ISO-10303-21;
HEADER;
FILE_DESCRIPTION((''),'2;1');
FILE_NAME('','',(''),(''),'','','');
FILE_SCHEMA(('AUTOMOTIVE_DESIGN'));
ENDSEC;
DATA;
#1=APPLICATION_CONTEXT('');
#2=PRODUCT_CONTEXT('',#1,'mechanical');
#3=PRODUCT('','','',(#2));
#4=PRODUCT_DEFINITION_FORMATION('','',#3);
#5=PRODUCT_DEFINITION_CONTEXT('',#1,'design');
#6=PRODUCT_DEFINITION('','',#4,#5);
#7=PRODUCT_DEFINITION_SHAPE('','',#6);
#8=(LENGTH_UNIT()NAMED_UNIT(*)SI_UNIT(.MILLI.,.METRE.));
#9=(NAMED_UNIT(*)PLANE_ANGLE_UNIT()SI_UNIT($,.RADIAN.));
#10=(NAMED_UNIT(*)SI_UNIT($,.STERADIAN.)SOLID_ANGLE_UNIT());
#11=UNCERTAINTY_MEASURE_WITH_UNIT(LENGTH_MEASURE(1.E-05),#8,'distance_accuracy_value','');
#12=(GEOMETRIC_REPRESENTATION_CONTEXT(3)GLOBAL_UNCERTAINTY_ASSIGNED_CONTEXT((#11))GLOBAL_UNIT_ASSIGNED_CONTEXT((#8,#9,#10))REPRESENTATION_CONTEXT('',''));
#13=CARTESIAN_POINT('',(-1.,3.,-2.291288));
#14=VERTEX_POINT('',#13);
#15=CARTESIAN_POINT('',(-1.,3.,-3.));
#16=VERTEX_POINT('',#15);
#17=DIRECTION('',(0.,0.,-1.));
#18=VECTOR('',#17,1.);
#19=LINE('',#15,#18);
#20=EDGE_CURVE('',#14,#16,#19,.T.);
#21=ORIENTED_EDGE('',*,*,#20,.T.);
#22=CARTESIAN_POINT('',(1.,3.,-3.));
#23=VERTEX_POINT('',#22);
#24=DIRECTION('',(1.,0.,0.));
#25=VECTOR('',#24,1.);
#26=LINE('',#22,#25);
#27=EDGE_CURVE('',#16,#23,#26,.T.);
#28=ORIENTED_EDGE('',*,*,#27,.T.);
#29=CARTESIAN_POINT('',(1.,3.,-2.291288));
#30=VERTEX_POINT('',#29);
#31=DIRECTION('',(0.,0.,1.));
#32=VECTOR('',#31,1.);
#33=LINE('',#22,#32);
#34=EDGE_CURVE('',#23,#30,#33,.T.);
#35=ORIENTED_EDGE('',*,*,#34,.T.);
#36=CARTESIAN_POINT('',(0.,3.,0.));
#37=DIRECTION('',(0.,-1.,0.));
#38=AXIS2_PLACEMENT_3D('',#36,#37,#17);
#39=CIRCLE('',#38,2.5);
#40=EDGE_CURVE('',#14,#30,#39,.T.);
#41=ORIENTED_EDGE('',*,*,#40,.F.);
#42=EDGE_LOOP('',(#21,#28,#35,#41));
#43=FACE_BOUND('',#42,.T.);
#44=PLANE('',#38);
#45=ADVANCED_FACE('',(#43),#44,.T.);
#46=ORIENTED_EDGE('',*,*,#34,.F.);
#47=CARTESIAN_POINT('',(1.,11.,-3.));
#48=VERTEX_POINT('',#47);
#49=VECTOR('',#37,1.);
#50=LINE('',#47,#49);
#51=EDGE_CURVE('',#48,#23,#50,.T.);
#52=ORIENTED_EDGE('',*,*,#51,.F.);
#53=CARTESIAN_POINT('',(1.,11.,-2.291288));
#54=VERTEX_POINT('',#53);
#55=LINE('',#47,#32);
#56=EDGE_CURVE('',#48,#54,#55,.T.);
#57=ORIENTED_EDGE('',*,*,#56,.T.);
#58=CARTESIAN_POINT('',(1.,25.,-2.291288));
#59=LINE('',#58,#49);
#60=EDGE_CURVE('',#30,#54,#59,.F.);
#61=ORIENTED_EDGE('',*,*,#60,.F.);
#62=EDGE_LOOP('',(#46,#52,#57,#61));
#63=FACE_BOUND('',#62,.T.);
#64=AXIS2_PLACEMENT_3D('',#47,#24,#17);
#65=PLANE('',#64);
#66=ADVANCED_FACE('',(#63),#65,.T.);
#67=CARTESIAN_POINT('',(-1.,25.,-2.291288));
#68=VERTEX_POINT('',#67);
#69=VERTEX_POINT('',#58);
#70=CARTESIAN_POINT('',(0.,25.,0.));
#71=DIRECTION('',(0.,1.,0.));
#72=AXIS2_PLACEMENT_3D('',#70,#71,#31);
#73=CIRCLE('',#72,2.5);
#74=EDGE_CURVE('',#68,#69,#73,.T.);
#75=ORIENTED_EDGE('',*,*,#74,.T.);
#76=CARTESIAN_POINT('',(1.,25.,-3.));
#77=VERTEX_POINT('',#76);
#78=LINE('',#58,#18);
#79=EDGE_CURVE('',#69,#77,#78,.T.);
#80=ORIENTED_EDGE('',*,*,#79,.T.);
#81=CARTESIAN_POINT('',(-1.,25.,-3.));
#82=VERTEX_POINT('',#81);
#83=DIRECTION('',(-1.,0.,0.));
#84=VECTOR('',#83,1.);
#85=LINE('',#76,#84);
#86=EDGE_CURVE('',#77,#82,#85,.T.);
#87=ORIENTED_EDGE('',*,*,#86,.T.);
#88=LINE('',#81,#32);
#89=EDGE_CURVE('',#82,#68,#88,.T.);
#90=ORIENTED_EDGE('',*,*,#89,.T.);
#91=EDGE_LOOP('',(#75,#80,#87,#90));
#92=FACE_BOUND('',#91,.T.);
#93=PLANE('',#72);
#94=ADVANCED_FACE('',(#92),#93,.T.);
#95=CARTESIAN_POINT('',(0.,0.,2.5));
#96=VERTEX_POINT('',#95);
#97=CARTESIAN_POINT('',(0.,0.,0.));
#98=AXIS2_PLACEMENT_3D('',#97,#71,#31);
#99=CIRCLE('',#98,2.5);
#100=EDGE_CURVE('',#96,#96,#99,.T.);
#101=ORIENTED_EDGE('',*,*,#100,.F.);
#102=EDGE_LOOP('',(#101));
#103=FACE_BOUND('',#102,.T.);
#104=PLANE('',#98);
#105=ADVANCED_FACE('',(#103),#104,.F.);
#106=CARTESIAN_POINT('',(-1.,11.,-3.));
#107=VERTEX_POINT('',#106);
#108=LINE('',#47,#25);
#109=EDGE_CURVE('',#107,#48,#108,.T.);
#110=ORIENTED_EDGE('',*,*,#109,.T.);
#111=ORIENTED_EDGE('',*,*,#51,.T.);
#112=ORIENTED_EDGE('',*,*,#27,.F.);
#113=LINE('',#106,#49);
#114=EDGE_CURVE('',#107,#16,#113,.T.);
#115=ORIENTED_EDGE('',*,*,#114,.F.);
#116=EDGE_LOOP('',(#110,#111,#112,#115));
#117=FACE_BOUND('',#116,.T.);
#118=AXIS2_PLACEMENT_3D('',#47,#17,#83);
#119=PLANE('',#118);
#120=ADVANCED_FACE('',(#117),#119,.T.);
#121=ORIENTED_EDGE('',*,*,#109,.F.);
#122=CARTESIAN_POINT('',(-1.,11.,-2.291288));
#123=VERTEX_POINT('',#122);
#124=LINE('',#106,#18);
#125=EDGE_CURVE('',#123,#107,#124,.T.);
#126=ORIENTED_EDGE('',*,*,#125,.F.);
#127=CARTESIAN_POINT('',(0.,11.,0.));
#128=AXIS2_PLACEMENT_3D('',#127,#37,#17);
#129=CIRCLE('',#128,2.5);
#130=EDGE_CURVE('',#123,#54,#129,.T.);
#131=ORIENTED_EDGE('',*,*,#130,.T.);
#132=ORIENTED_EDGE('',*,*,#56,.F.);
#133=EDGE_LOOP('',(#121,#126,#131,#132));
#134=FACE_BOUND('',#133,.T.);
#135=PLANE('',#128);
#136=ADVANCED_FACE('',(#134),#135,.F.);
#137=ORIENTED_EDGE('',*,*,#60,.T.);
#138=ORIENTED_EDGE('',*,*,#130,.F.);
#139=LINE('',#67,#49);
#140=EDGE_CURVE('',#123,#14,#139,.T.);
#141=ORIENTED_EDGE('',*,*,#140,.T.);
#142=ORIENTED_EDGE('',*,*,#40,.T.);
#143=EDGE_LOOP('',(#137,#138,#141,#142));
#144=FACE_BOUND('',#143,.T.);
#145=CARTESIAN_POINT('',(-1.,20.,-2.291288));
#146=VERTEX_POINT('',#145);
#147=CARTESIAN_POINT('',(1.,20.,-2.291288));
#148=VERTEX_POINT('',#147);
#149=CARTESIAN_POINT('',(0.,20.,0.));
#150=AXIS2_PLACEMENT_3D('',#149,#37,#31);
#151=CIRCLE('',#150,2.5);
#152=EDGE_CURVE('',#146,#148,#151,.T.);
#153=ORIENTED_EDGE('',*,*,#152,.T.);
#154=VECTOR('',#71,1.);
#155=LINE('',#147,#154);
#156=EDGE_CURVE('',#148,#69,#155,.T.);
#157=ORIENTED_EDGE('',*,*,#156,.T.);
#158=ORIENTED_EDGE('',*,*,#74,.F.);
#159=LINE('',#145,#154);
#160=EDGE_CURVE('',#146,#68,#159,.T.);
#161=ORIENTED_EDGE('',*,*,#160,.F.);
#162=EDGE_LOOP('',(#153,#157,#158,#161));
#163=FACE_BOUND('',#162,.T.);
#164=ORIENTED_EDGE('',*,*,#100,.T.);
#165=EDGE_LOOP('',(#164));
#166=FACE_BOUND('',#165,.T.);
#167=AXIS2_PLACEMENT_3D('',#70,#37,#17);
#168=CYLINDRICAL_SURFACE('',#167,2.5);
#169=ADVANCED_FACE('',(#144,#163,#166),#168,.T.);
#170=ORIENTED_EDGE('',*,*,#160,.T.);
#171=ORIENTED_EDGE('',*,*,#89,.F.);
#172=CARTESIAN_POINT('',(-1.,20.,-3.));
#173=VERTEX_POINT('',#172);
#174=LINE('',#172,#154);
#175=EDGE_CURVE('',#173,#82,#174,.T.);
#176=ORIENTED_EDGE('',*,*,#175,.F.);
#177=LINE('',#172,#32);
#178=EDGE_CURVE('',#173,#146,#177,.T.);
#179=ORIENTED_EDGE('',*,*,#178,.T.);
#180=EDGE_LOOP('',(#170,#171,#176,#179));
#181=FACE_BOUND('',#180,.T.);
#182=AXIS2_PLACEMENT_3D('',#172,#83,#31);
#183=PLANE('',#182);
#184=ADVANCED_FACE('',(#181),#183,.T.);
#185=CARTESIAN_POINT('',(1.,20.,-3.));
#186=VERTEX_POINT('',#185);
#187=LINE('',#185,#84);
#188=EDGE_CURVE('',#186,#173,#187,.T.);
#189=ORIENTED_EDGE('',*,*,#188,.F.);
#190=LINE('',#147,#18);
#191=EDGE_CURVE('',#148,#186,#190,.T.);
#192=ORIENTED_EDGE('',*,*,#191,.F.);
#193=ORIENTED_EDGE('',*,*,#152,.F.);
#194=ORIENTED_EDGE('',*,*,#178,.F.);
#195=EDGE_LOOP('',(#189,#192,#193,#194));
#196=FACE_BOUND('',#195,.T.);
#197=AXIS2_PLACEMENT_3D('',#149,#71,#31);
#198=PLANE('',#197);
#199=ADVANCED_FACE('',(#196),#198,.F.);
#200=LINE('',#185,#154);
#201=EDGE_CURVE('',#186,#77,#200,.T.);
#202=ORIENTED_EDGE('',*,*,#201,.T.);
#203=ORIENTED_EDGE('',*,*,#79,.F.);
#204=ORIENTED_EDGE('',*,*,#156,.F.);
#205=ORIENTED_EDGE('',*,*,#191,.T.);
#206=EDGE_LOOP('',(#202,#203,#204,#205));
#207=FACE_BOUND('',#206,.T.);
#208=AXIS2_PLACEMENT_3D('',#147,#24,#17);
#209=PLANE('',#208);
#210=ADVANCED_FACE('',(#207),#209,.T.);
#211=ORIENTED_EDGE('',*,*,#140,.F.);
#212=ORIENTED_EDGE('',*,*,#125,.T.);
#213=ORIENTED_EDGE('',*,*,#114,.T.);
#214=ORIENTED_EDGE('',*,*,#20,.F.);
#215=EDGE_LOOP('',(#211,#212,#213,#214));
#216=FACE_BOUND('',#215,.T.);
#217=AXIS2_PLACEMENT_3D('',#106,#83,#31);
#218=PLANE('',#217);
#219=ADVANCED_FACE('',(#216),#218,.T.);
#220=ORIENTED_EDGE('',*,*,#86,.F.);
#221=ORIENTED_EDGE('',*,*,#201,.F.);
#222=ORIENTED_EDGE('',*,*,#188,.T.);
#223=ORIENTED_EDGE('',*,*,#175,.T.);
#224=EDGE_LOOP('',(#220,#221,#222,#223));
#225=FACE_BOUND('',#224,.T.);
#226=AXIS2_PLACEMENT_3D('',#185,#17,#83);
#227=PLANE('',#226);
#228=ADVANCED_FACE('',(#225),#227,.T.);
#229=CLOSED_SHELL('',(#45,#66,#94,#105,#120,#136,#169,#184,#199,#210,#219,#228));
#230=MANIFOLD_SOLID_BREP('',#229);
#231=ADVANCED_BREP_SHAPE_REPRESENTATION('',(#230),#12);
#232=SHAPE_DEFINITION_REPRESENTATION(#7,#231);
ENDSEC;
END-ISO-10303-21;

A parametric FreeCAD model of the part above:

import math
import FreeCAD as App
import Part
import Sketcher

doc = App.newDocument("Part")
body = doc.addObject("PartDesign::Body", "Body")

# Sketch on XZ plane
sketch1 = doc.addObject("Sketcher::SketchObject", "Sketch")
body.addObject(sketch1)
sketch1.AttachmentSupport = (doc.XZ_Plane, [""])
sketch1.MapMode = "FlatFace"
sketch1.addGeometry(Part.Circle(App.Vector(0, 0, 0), App.Vector(0, 0, 1), 2.5), False)
sketch1.addConstraint([
    Sketcher.Constraint("Coincident", 0, 3, -1, 1),
    Sketcher.Constraint("Diameter", 0, 5.0),
])
pad1 = doc.addObject("PartDesign::Pad", "Pad")
body.addObject(pad1)
pad1.Profile = sketch1
pad1.Length = 25
pad1.Reversed = True

# Sketch on XZ plane
sketch2 = doc.addObject("Sketcher::SketchObject", "Sketch001")
body.addObject(sketch2)
sketch2.AttachmentSupport = (doc.XZ_Plane, [""])
sketch2.MapMode = "FlatFace"
sketch2.AttachmentOffset = App.Placement(App.Vector(0, 0, -3), App.Rotation())
sketch2.addGeometry([
    Part.LineSegment(App.Vector(1, -3, 0), App.Vector(1, -2, 0)),
    Part.LineSegment(App.Vector(1, -2, 0), App.Vector(-1, -2, 0)),
    Part.LineSegment(App.Vector(-1, -2, 0), App.Vector(-1, -3, 0)),
    Part.LineSegment(App.Vector(-1, -3, 0), App.Vector(1, -3, 0)),
], False)
sketch2.addConstraint([
    Sketcher.Constraint("Coincident", 0, 2, 1, 1),
    Sketcher.Constraint("Coincident", 1, 2, 2, 1),
    Sketcher.Constraint("Coincident", 2, 2, 3, 1),
    Sketcher.Constraint("Coincident", 3, 2, 0, 1),
    Sketcher.Constraint("Vertical", 0),
    Sketcher.Constraint("Horizontal", 1),
    Sketcher.Constraint("Vertical", 2),
    Sketcher.Constraint("Horizontal", 3),
    Sketcher.Constraint("DistanceX", 1, 2, 1, 1, 2.0),
    Sketcher.Constraint("DistanceY", 0, 1, 0, 2, 1.0),
    Sketcher.Constraint("DistanceX", -1, 1, 0, 2, 1.0),
    Sketcher.Constraint("DistanceY", 0, 2, -1, 1, 2.0),
])
pad2 = doc.addObject("PartDesign::Pad", "Pad001")
body.addObject(pad2)
pad2.Profile = sketch2
pad2.Length = 8
pad2.Reversed = True

# Sketch on XZ plane
sketch3 = doc.addObject("Sketcher::SketchObject", "Sketch002")
body.addObject(sketch3)
sketch3.AttachmentSupport = (doc.XZ_Plane, [""])
sketch3.MapMode = "FlatFace"
sketch3.AttachmentOffset = App.Placement(App.Vector(0, 0, -20), App.Rotation())
sketch3.addGeometry([
    Part.LineSegment(App.Vector(-1, -3, 0), App.Vector(-1, -2.3, 0)),
    Part.ArcOfCircle(Part.Circle(App.Vector(0, 0, 0), App.Vector(0, 0, 1), 2.5), math.radians(-114), math.radians(-66)),
    Part.LineSegment(App.Vector(1, -2.3, 0), App.Vector(1, -3, 0)),
    Part.LineSegment(App.Vector(1, -3, 0), App.Vector(-1, -3, 0)),
], False)
sketch3.addConstraint([
    Sketcher.Constraint("Coincident", 0, 2, 1, 1),
    Sketcher.Constraint("Coincident", 1, 2, 2, 1),
    Sketcher.Constraint("Coincident", 2, 2, 3, 1),
    Sketcher.Constraint("Coincident", 3, 2, 0, 1),
    Sketcher.Constraint("Vertical", 0),
    Sketcher.Constraint("Vertical", 2),
    Sketcher.Constraint("Horizontal", 3),
    Sketcher.Constraint("Coincident", 1, 3, -1, 1),
    Sketcher.Constraint("Horizontal", 0, 2, 1, 2),
    Sketcher.Constraint("Radius", 1, 2.5),
    Sketcher.Constraint("DistanceX", 3, 2, 3, 1, 2.0),
    Sketcher.Constraint("DistanceY", 2, 2, -1, 1, 3.0),
])
pad3 = doc.addObject("PartDesign::Pad", "Pad002")
body.addObject(pad3)
pad3.Profile = sketch3
pad3.Length = 5
pad3.Reversed = True

doc.recompute()
